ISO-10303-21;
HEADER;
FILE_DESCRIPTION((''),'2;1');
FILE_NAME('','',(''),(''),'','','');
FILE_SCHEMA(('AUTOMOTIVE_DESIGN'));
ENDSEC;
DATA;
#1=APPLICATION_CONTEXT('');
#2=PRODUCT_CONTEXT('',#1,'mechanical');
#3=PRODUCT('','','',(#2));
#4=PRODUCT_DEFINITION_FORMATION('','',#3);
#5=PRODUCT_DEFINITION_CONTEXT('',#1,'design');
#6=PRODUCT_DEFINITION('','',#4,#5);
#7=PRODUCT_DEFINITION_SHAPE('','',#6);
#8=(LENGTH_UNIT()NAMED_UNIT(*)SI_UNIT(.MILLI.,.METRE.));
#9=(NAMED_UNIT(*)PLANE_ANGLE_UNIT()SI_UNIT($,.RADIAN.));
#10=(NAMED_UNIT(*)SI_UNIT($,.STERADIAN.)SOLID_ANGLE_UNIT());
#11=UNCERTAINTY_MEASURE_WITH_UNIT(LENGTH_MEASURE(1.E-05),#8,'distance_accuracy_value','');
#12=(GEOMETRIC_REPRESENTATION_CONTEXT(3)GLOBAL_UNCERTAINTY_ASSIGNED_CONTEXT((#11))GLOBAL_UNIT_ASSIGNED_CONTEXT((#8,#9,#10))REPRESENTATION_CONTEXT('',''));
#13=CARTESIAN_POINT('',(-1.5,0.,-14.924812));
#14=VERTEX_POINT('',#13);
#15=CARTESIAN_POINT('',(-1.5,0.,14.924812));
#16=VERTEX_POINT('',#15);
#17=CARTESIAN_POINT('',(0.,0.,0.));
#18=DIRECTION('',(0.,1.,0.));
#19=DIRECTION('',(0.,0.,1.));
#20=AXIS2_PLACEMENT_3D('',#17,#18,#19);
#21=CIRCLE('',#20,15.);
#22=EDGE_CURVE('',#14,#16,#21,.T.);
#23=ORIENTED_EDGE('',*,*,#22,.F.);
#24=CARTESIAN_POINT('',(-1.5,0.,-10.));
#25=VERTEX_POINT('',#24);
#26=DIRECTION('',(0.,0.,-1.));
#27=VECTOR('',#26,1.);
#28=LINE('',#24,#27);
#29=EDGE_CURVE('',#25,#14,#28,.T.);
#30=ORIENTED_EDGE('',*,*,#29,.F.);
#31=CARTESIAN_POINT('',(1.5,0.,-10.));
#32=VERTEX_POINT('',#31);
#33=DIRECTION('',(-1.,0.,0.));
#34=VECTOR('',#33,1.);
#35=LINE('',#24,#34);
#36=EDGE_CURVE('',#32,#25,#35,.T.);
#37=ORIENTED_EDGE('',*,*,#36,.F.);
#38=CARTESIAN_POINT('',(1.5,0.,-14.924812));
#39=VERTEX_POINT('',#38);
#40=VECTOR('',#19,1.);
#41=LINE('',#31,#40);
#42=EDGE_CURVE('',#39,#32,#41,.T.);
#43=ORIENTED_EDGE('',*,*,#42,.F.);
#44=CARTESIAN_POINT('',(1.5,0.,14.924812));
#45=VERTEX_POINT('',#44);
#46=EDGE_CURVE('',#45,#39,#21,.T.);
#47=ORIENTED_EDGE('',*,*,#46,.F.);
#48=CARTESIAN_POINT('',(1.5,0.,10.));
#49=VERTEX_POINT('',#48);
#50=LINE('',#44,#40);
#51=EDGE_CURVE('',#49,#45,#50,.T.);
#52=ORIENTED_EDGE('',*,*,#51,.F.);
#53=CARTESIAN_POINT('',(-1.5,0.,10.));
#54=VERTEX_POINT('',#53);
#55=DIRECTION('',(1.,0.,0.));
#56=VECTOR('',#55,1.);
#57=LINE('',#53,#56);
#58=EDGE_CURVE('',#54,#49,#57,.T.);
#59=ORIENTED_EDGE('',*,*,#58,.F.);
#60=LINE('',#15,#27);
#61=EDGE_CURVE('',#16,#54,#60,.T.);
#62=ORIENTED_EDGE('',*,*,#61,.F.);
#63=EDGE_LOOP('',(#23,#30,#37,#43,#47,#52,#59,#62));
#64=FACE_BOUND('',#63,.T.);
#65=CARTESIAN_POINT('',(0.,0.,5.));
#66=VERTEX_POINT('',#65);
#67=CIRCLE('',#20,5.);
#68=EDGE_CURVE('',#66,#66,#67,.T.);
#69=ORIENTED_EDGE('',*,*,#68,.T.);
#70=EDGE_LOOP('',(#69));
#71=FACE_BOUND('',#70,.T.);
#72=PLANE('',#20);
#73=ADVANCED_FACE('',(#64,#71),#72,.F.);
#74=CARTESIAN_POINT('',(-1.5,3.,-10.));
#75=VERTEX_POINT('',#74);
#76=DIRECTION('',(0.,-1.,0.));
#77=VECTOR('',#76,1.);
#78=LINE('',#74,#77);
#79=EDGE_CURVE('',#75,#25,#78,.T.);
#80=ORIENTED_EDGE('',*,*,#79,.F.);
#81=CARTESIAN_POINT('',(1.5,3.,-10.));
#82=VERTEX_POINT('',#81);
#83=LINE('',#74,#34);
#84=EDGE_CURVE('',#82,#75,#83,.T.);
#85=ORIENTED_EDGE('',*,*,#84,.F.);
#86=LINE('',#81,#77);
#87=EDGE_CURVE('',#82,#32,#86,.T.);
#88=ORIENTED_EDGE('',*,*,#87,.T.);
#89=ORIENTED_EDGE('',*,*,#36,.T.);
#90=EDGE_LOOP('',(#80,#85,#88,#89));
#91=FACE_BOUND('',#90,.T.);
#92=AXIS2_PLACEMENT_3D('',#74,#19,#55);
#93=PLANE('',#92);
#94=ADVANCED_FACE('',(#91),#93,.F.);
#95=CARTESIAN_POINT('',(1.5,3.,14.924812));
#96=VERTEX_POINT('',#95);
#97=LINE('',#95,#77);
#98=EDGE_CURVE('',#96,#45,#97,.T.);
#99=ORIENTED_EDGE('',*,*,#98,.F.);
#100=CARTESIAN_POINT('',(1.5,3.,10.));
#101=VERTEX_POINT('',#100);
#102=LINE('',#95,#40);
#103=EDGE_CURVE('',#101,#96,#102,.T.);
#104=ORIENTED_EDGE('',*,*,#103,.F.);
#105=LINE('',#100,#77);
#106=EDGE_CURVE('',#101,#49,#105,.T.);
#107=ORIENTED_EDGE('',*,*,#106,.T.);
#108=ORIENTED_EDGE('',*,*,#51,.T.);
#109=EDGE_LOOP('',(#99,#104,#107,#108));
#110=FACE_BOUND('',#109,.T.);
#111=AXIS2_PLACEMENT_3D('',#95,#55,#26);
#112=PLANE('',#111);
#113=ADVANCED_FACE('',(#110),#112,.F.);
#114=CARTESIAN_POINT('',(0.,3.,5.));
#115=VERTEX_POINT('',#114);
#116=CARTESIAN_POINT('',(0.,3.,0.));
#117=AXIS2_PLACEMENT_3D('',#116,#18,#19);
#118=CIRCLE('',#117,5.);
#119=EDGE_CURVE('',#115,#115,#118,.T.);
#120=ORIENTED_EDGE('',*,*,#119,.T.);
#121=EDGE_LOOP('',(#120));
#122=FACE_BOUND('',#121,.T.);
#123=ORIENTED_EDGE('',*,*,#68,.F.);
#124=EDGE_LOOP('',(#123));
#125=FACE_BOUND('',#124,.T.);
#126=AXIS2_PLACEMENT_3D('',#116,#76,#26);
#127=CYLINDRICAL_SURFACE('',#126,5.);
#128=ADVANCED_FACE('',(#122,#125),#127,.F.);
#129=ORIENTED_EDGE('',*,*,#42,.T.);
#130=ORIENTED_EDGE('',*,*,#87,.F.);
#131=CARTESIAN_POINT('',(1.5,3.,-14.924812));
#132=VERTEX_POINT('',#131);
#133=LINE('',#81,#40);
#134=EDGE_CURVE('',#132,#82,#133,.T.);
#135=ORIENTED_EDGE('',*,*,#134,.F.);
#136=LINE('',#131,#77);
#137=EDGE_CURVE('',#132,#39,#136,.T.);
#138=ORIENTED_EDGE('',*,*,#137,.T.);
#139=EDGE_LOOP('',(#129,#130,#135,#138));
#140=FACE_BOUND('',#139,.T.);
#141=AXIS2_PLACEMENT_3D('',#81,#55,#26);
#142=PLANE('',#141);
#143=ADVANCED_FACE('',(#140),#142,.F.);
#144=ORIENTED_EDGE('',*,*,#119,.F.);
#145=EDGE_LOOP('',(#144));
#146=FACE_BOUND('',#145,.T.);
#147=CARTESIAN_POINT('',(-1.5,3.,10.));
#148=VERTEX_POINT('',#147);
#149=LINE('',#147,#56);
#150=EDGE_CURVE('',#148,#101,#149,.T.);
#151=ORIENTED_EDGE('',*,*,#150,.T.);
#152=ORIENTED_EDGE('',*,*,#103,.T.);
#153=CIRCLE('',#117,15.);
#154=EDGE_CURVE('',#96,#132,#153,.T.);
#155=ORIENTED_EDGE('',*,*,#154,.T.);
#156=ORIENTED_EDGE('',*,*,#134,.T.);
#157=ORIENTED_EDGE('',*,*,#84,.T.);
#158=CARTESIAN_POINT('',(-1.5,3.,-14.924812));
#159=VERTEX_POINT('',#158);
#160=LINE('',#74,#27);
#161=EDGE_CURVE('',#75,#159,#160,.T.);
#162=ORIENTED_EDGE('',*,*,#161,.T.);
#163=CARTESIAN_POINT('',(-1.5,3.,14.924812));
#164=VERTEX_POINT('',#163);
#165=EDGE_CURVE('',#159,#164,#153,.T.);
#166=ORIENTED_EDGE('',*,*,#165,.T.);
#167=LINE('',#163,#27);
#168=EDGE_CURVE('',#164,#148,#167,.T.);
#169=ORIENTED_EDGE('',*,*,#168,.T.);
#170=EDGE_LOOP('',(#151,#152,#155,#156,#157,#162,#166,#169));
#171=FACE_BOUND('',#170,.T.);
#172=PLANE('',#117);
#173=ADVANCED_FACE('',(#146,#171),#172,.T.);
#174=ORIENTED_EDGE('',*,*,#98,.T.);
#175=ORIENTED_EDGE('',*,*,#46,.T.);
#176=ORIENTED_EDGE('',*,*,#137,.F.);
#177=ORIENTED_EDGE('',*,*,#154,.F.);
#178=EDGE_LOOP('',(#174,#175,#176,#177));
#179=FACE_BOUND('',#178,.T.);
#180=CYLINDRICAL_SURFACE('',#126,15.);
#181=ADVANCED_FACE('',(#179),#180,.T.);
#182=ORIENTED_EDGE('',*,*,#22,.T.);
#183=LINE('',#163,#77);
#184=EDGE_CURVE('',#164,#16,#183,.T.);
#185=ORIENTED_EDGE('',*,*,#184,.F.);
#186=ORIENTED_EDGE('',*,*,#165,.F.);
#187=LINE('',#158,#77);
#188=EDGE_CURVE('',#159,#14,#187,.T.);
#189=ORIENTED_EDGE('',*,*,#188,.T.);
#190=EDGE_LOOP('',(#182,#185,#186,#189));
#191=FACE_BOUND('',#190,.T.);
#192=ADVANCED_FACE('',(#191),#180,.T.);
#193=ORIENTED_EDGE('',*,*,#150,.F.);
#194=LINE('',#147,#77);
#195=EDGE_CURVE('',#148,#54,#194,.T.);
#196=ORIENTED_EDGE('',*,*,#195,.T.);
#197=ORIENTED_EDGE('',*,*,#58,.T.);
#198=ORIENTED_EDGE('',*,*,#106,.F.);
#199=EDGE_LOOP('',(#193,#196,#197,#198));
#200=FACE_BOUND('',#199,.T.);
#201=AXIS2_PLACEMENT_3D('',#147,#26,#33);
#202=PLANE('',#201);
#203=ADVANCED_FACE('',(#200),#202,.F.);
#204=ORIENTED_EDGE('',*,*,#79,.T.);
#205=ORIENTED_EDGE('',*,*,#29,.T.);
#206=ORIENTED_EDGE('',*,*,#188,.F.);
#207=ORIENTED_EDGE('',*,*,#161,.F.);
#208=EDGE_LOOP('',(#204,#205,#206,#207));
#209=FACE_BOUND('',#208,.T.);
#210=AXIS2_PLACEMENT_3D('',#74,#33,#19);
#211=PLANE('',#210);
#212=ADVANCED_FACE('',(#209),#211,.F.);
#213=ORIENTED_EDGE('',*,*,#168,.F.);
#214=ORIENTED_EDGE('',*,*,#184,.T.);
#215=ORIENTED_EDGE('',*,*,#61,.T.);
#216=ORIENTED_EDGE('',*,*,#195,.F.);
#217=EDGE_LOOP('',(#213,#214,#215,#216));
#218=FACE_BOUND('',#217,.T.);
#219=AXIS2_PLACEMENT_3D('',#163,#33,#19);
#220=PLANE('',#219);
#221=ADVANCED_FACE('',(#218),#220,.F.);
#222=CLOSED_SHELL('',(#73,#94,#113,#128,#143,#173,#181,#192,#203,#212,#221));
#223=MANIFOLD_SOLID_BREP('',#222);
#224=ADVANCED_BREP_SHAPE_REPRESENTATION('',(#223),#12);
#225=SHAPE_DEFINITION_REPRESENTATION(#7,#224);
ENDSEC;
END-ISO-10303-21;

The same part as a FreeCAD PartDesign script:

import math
import FreeCAD as App
import Part
import Sketcher
Q = App.Units.Quantity

doc = App.newDocument("Part")
body = doc.addObject("PartDesign::Body", "Body")

# Sketch on XZ plane
sketch1 = body.newObject("Sketcher::SketchObject", "Sketch")
sketch1.AttachmentSupport = (doc.getObject("XZ_Plane"), [""])
sketch1.MapMode = "FlatFace"
sketch1.addGeometry(Part.LineSegment(App.Vector(-1.5, 14.9, 0), App.Vector(-1.5, 10, 0)), False)
sketch1.addGeometry(Part.LineSegment(App.Vector(-1.5, 10, 0), App.Vector(1.5, 10, 0)), False)
sketch1.addGeometry(Part.LineSegment(App.Vector(1.5, 10, 0), App.Vector(1.5, 14.9, 0)), False)
sketch1.addGeometry(Part.ArcOfCircle(Part.Circle(App.Vector(0, 0, 0), App.Vector(0, 0, 1), 15), math.radians(-84), math.radians(84)), False)
sketch1.addGeometry(Part.LineSegment(App.Vector(1.5, -14.9, 0), App.Vector(1.5, -10, 0)), False)
sketch1.addGeometry(Part.LineSegment(App.Vector(1.5, -10, 0), App.Vector(-1.5, -10, 0)), False)
sketch1.addGeometry(Part.LineSegment(App.Vector(-1.5, -10, 0), App.Vector(-1.5, -14.9, 0)), False)
sketch1.addGeometry(Part.ArcOfCircle(Part.Circle(App.Vector(0, 0, 0), App.Vector(0, 0, 1), 15), math.radians(96), math.radians(264)), False)
sketch1.addGeometry(Part.Circle(App.Vector(0, 0, 0), App.Vector(0, 0, 1), 5), False)
sketch1.addConstraint(Sketcher.Constraint("Coincident", 0, 2, 1, 1))
sketch1.addConstraint(Sketcher.Constraint("Coincident", 1, 2, 2, 1))
sketch1.addConstraint(Sketcher.Constraint("Coincident", 2, 2, 3, 2))
sketch1.addConstraint(Sketcher.Constraint("Coincident", 3, 1, 4, 1))
sketch1.addConstraint(Sketcher.Constraint("Coincident", 4, 2, 5, 1))
sketch1.addConstraint(Sketcher.Constraint("Coincident", 5, 2, 6, 1))
sketch1.addConstraint(Sketcher.Constraint("Coincident", 6, 2, 7, 2))
sketch1.addConstraint(Sketcher.Constraint("Coincident", 7, 1, 0, 1))
sketch1.addConstraint(Sketcher.Constraint("Vertical", 0))
sketch1.addConstraint(Sketcher.Constraint("Horizontal", 1))
sketch1.addConstraint(Sketcher.Constraint("Vertical", 2))
sketch1.addConstraint(Sketcher.Constraint("Vertical", 4))
sketch1.addConstraint(Sketcher.Constraint("Horizontal", 5))
sketch1.addConstraint(Sketcher.Constraint("Vertical", 6))
sketch1.addConstraint(Sketcher.Constraint("Coincident", 3, 3, -1, 1))
sketch1.addConstraint(Sketcher.Constraint("Coincident", 7, 3, -1, 1))
sketch1.addConstraint(Sketcher.Constraint("Coincident", 8, 3, -1, 1))
sketch1.addConstraint(Sketcher.Constraint("Equal", 3, 7))
sketch1.addConstraint(Sketcher.Constraint("Symmetric", 0, 2, 4, 2, -1, 1))
sketch1.addConstraint(Sketcher.Constraint("Horizontal", 3, 1, 6, 2))
sketch1.addConstraint(Sketcher.Constraint("Horizontal", 2, 2, 7, 1))
sketch1.addConstraint(Sketcher.Constraint("Diameter", 8, Q("10 mm")))
sketch1.addConstraint(Sketcher.Constraint("Radius", 3, Q("15 mm")))
sketch1.addConstraint(Sketcher.Constraint("DistanceX", 1, 1, 1, 2, Q("3 mm")))
sketch1.addConstraint(Sketcher.Constraint("DistanceY", -1, 1, 0, 2, Q("10 mm")))
pad1 = body.newObject("PartDesign::Pad", "Pad")
pad1.Profile = sketch1
pad1.Length = 3
pad1.Reversed = True

doc.recompute()
